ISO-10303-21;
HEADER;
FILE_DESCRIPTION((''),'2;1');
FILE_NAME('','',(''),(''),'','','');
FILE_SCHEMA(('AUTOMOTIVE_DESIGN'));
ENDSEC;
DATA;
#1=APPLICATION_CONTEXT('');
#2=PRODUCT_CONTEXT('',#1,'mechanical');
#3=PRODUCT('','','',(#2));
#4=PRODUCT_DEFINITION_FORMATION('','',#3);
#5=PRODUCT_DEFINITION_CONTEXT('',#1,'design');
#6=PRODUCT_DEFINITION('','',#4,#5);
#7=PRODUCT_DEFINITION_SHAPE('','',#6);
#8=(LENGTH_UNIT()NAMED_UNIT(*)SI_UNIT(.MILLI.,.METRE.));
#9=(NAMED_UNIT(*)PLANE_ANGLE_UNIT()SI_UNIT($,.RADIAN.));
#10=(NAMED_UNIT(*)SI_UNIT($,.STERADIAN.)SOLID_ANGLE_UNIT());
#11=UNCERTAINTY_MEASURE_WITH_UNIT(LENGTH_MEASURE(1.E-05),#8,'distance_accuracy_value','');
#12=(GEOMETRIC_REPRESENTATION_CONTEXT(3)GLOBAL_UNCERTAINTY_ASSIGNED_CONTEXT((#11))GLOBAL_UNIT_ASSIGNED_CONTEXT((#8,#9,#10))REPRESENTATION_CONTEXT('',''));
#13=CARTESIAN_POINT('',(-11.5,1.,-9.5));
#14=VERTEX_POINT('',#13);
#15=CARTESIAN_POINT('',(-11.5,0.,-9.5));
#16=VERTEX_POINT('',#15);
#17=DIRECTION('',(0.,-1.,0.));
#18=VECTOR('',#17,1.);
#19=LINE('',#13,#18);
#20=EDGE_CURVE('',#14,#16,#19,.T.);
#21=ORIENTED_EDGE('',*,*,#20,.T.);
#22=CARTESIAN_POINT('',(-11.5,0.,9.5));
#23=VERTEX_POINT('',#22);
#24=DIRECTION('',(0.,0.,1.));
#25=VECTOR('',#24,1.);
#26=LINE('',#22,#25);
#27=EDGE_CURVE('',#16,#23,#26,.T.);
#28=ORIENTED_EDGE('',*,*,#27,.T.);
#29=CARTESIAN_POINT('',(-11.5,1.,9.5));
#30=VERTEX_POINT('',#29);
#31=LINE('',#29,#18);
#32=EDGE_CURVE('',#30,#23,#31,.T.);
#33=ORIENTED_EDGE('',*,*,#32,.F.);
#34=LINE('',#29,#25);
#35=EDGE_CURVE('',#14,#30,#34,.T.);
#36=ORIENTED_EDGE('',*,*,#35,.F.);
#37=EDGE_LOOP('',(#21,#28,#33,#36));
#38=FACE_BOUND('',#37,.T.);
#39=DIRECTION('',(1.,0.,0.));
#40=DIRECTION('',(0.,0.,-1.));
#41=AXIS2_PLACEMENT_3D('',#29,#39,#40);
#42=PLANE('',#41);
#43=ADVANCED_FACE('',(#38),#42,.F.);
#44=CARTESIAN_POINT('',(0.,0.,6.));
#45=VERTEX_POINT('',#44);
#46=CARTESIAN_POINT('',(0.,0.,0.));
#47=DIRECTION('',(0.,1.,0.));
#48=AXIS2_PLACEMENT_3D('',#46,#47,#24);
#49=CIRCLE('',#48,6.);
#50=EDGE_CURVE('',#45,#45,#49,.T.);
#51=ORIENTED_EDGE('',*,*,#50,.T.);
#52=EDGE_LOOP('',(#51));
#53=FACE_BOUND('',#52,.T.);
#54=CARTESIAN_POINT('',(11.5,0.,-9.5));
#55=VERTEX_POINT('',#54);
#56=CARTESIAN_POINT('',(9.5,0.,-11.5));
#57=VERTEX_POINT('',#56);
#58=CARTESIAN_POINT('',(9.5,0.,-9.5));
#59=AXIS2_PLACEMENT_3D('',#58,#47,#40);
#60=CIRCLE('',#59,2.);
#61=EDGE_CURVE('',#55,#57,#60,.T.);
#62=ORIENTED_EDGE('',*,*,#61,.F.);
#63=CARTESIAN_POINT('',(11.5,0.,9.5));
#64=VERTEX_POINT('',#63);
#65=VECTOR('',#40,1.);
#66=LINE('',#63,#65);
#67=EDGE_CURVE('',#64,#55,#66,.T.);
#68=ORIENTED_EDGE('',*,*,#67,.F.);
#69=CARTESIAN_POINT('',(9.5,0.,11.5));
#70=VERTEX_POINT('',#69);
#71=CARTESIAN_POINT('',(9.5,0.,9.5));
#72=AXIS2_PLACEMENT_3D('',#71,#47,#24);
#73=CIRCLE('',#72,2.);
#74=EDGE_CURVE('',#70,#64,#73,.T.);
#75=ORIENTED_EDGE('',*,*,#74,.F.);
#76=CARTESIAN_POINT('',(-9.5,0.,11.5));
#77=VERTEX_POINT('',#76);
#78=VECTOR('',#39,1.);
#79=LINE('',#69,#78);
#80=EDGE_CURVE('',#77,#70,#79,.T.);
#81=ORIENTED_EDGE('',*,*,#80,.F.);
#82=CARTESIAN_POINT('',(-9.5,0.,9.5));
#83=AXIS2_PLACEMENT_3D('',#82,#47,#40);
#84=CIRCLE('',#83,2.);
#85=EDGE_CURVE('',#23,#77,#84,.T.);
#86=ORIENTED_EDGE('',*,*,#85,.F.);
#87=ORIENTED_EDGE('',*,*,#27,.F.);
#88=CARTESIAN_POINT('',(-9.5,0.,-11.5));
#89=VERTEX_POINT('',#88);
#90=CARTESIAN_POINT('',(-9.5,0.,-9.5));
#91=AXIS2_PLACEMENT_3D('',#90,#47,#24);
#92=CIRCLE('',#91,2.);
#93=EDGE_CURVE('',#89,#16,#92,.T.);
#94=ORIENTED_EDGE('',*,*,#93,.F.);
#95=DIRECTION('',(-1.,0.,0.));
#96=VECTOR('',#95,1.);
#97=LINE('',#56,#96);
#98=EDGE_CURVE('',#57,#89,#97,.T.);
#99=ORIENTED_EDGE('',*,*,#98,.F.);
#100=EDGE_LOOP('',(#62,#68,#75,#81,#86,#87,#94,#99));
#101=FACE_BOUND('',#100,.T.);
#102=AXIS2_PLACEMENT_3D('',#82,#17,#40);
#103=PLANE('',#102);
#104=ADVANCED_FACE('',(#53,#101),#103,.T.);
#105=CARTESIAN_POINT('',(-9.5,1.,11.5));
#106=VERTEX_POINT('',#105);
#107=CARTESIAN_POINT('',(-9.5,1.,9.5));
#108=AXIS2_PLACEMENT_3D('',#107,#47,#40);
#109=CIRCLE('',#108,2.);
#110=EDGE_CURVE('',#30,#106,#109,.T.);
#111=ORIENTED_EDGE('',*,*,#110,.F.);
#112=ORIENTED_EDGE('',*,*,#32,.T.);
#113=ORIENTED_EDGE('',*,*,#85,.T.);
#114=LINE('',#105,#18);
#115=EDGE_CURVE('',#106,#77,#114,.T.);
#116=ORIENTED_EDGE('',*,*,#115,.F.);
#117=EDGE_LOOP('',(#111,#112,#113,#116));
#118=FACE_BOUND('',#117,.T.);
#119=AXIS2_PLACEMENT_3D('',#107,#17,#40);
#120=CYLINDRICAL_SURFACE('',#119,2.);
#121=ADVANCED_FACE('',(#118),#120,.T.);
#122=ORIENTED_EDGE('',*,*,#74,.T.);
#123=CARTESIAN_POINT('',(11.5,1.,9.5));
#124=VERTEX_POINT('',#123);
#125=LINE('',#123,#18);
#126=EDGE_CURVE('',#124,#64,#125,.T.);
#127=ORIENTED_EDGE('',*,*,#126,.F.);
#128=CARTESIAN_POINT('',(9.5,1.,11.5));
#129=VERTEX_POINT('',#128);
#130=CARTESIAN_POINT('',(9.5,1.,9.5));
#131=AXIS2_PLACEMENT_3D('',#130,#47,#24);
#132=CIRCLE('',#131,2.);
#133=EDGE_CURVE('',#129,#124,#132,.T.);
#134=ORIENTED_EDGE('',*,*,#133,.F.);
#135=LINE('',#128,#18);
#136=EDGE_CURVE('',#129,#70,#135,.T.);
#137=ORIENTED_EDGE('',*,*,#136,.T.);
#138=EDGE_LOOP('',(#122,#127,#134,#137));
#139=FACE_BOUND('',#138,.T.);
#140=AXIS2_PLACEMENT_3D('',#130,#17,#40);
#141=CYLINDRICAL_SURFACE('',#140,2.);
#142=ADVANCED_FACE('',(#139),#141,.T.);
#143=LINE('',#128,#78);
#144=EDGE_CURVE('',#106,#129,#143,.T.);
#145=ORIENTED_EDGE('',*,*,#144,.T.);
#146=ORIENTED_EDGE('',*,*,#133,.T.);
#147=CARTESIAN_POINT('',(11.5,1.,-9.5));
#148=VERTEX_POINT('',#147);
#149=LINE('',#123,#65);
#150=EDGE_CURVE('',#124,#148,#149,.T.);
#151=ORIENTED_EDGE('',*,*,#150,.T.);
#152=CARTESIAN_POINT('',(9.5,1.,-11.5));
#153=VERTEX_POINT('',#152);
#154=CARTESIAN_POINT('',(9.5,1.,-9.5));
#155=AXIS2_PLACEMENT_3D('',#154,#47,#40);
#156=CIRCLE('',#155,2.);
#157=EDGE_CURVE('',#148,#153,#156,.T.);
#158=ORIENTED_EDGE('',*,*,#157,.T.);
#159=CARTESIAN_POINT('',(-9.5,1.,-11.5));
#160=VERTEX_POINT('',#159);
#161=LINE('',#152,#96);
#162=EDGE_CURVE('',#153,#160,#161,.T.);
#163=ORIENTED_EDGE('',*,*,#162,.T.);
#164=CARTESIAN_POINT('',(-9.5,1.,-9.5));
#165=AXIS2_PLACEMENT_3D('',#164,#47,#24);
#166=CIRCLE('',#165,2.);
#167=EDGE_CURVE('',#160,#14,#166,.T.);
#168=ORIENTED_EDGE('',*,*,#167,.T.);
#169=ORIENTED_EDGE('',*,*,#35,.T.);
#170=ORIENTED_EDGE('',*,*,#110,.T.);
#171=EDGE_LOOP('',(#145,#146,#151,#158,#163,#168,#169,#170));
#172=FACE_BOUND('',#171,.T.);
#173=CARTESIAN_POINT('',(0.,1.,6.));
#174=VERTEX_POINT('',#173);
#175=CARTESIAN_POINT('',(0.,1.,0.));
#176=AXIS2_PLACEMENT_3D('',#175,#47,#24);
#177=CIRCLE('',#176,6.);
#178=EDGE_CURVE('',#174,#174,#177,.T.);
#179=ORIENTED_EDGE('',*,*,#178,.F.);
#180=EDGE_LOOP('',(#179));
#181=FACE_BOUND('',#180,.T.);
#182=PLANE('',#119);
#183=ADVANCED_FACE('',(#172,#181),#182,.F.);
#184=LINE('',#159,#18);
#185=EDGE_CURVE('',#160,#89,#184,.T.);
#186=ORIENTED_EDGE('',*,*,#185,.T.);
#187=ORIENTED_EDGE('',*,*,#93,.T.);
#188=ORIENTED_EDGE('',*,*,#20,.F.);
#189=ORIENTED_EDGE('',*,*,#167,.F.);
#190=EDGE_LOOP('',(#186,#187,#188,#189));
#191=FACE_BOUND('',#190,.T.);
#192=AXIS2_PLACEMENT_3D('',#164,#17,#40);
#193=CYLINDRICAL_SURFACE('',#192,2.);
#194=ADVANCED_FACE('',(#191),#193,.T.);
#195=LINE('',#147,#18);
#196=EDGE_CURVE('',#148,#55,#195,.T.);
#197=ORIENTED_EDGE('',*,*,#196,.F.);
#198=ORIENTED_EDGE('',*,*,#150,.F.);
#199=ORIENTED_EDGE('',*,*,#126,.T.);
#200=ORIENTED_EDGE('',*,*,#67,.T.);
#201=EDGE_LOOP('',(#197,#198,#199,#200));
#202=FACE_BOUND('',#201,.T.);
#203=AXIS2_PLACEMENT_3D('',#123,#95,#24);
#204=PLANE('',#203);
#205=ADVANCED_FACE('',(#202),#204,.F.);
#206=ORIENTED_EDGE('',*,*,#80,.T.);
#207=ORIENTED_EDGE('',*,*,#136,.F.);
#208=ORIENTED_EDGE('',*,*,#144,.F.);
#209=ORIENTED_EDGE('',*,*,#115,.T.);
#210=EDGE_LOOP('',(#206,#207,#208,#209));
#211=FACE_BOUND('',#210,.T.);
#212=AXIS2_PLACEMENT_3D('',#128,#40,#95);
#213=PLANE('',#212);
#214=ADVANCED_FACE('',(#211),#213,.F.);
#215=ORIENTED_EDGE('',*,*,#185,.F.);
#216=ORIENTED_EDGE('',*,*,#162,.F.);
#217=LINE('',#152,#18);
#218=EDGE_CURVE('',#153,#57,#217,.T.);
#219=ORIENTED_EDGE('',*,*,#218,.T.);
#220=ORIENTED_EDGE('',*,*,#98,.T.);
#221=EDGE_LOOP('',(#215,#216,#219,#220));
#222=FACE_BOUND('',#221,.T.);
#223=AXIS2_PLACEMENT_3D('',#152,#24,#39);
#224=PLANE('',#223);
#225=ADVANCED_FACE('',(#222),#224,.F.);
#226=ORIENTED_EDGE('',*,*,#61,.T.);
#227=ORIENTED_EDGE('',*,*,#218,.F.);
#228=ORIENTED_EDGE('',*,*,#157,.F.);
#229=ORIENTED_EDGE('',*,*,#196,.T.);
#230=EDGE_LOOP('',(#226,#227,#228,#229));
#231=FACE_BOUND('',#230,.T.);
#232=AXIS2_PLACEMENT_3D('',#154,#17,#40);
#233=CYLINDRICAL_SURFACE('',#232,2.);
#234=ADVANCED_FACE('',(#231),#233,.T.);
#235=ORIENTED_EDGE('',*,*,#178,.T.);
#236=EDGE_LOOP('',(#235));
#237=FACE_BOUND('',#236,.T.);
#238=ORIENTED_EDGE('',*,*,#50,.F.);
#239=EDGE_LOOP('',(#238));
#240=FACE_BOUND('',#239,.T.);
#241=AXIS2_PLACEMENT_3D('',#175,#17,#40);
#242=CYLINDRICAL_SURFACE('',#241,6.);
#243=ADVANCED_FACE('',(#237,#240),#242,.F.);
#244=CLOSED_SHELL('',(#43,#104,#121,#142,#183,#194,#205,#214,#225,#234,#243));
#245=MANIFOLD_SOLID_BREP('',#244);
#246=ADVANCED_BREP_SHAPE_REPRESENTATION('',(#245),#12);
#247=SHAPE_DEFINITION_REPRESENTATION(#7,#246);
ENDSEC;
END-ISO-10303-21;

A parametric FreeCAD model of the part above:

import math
import FreeCAD as App
import Part
import Sketcher
from FreeCAD import Vector

doc = App.newDocument("Part")
body = doc.addObject("PartDesign::Body", "Body")

# Sketch on XZ plane
sketch1 = doc.addObject("Sketcher::SketchObject", "Sketch")
body.addObject(sketch1)
sketch1.AttachmentSupport = (doc.XZ_Plane, [""])
sketch1.MapMode = "FlatFace"
sketch1.addGeometry(Part.LineSegment(Vector(-9.5, 11.5, 0), Vector(9.5, 11.5, 0)), False)
sketch1.addGeometry(Part.ArcOfCircle(Part.Circle(Vector(9.5, 9.5, 0), Vector(0, 0, 1), 2), math.radians(0), math.radians(90)), False)
sketch1.addGeometry(Part.LineSegment(Vector(11.5, 9.5, 0), Vector(11.5, -9.5, 0)), False)
sketch1.addGeometry(Part.ArcOfCircle(Part.Circle(Vector(9.5, -9.5, 0), Vector(0, 0, 1), 2), math.radians(-90), math.radians(0)), False)
sketch1.addGeometry(Part.LineSegment(Vector(9.5, -11.5, 0), Vector(-9.5, -11.5, 0)), False)
sketch1.addGeometry(Part.ArcOfCircle(Part.Circle(Vector(-9.5, -9.5, 0), Vector(0, 0, 1), 2), math.radians(-180), math.radians(-90)), False)
sketch1.addGeometry(Part.LineSegment(Vector(-11.5, -9.5, 0), Vector(-11.5, 9.5, 0)), False)
sketch1.addGeometry(Part.ArcOfCircle(Part.Circle(Vector(-9.5, 9.5, 0), Vector(0, 0, 1), 2), math.radians(90), math.radians(180)), False)
sketch1.addGeometry(Part.Circle(Vector(0, 0, 0), Vector(0, 0, 1), 6), False)
sketch1.addConstraint(Sketcher.Constraint("Tangent", 0, 2, 1, 2))
sketch1.addConstraint(Sketcher.Constraint("Tangent", 1, 1, 2, 1))
sketch1.addConstraint(Sketcher.Constraint("Tangent", 2, 2, 3, 2))
sketch1.addConstraint(Sketcher.Constraint("Tangent", 3, 1, 4, 1))
sketch1.addConstraint(Sketcher.Constraint("Tangent", 4, 2, 5, 2))
sketch1.addConstraint(Sketcher.Constraint("Tangent", 5, 1, 6, 1))
sketch1.addConstraint(Sketcher.Constraint("Tangent", 6, 2, 7, 2))
sketch1.addConstraint(Sketcher.Constraint("Tangent", 7, 1, 0, 1))
sketch1.addConstraint(Sketcher.Constraint("Horizontal", 0))
sketch1.addConstraint(Sketcher.Constraint("Vertical", 2))
sketch1.addConstraint(Sketcher.Constraint("Horizontal", 4))
sketch1.addConstraint(Sketcher.Constraint("Vertical", 6))
sketch1.addConstraint(Sketcher.Constraint("Coincident", 8, 3, -1, 1))
sketch1.addConstraint(Sketcher.Constraint("Equal", 1, 3))
sketch1.addConstraint(Sketcher.Constraint("Equal", 3, 5))
sketch1.addConstraint(Sketcher.Constraint("Equal", 5, 7))
sketch1.addConstraint(Sketcher.Constraint("Symmetric", 1, 3, 5, 3, -1, 1))
sketch1.addConstraint(Sketcher.Constraint("Equal", 4, 2))
sketch1.addConstraint(Sketcher.Constraint("Diameter", 8, 12.0))
sketch1.addConstraint(Sketcher.Constraint("Radius", 1, 2.0))
sketch1.addConstraint(Sketcher.Constraint("DistanceX", 0, 1, 0, 2, 19.0))
pad1 = doc.addObject("PartDesign::Pad", "Pad")
body.addObject(pad1)
pad1.Profile = sketch1
pad1.Length = 1
pad1.Reversed = True

doc.recompute()
